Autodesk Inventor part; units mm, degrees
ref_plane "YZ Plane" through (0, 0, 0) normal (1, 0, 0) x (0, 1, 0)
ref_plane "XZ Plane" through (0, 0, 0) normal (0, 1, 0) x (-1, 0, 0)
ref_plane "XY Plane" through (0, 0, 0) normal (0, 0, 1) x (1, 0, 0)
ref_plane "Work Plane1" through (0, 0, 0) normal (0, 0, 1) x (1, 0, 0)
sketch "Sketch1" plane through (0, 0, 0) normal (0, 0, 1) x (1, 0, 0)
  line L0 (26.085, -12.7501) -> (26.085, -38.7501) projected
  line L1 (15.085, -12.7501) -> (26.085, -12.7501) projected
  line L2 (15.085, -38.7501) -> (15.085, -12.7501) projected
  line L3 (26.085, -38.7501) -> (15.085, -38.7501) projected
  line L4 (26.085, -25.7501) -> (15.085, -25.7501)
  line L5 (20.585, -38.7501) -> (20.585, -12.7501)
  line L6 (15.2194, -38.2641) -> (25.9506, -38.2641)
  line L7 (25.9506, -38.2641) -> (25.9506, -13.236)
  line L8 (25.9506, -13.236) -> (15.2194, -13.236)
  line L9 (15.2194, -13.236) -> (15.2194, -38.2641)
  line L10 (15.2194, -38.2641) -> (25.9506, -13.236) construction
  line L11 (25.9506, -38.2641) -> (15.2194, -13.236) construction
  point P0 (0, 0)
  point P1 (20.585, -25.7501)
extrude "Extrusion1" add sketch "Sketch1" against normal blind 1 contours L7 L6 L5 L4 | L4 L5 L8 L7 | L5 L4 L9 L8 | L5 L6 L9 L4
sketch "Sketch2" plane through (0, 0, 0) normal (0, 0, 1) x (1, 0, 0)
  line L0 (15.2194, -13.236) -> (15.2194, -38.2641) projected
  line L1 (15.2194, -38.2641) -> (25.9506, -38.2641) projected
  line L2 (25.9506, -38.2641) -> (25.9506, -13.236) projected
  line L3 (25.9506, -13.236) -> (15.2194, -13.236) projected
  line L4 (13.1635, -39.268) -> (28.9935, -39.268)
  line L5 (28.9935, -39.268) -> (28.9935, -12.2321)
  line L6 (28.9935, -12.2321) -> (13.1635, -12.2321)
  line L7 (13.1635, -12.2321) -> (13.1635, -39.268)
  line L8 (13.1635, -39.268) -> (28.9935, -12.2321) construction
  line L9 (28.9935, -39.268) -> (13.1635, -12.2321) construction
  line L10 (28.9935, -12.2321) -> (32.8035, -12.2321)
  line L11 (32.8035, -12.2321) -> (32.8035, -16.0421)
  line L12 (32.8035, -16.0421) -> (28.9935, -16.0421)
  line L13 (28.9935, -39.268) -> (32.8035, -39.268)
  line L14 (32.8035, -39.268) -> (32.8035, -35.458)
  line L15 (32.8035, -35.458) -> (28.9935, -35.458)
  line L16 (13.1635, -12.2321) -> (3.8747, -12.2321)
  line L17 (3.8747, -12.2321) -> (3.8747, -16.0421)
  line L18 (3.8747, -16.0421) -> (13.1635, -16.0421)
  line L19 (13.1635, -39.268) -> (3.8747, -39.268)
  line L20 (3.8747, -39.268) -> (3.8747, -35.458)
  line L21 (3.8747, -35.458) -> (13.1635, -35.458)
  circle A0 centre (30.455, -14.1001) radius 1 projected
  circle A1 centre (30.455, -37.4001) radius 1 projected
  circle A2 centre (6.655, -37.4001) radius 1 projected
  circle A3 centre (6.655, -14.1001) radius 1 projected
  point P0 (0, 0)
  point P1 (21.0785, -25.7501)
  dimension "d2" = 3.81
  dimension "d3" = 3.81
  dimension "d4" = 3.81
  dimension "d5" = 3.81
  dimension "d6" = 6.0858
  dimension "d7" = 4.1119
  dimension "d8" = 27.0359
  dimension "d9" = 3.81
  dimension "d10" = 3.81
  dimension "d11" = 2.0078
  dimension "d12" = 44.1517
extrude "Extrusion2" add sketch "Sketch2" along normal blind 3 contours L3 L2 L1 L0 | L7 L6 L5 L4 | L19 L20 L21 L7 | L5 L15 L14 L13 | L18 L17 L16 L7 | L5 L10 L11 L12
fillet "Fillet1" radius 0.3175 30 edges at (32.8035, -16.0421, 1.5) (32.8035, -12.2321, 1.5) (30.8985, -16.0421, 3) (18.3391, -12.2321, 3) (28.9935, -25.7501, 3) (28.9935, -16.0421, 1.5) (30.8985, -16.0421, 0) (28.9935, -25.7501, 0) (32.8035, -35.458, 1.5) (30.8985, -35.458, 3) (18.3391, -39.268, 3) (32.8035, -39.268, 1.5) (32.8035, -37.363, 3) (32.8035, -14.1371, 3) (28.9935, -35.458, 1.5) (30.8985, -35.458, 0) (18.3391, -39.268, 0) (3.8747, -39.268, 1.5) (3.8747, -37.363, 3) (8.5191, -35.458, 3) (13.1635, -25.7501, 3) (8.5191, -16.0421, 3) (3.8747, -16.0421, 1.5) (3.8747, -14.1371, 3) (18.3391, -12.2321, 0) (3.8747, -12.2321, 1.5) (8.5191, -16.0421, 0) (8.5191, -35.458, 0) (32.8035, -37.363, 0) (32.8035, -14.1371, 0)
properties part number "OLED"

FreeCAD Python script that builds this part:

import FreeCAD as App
import Part
import Sketcher

V = App.Vector


def edges_at(feature, points):
    """Names of the edges that pass closest to the given points."""
    edges = feature.Shape.Edges
    near = lambda p: min(range(len(edges)), key=lambda i: edges[i].distToShape(Part.Vertex(*p))[0])
    return sorted({f"Edge{near(p) + 1}" for p in points})

doc = App.newDocument("Part")
body = doc.addObject("PartDesign::Body", "Body")

# Sketch on XY plane
sketch1 = body.newObject("Sketcher::SketchObject", "Sketch")
sketch1.AttachmentSupport = (doc.getObject("XY_Plane"), [""])
sketch1.MapMode = "FlatFace"
sketch1.addGeometry(Part.LineSegment(V(26, -38, 0), V(26, -13, 0)), False)
sketch1.addGeometry(Part.LineSegment(V(26, -13, 0), V(15, -13, 0)), False)
sketch1.addGeometry(Part.LineSegment(V(15, -13, 0), V(15, -38, 0)), False)
sketch1.addGeometry(Part.LineSegment(V(15, -38, 0), V(26, -38, 0)), False)
sketch1.addConstraint(Sketcher.Constraint("Coincident", 0, 2, 1, 1))
sketch1.addConstraint(Sketcher.Constraint("Coincident", 1, 2, 2, 1))
sketch1.addConstraint(Sketcher.Constraint("Coincident", 2, 2, 3, 1))
sketch1.addConstraint(Sketcher.Constraint("Coincident", 3, 2, 0, 1))
sketch1.addConstraint(Sketcher.Constraint("Vertical", 0))
sketch1.addConstraint(Sketcher.Constraint("Horizontal", 1))
sketch1.addConstraint(Sketcher.Constraint("Vertical", 2))
sketch1.addConstraint(Sketcher.Constraint("Horizontal", 3))
sketch1.addConstraint(Sketcher.Constraint("DistanceY", 0, 1, 0, 2, 25.028))
sketch1.addConstraint(Sketcher.Constraint("DistanceX", 1, 2, 1, 1, 10.7312))
sketch1.addConstraint(Sketcher.Constraint("DistanceY", 0, 2, -1, 1, 13.236))
sketch1.addConstraint(Sketcher.Constraint("DistanceX", -1, 1, 0, 2, 25.9506))
pad1 = body.newObject("PartDesign::Pad", "Pad")
pad1.Profile = sketch1
pad1.Length = 1
pad1.Reversed = True

# Sketch on XY plane
sketch2 = body.newObject("Sketcher::SketchObject", "Sketch001")
sketch2.AttachmentSupport = (doc.getObject("XY_Plane"), [""])
sketch2.MapMode = "FlatFace"
sketch2.addGeometry(Part.LineSegment(V(13.2, -16, 0), V(13.2, -35.5, 0)), False)
sketch2.addGeometry(Part.LineSegment(V(13.2, -35.5, 0), V(3.9, -35.5, 0)), False)
sketch2.addGeometry(Part.LineSegment(V(3.9, -35.5, 0), V(3.9, -39.3, 0)), False)
sketch2.addGeometry(Part.LineSegment(V(3.9, -39.3, 0), V(32.8, -39.3, 0)), False)
sketch2.addGeometry(Part.LineSegment(V(32.8, -39.3, 0), V(32.8, -35.5, 0)), False)
sketch2.addGeometry(Part.LineSegment(V(32.8, -35.5, 0), V(29, -35.5, 0)), False)
sketch2.addGeometry(Part.LineSegment(V(29, -35.5, 0), V(29, -16, 0)), False)
sketch2.addGeometry(Part.LineSegment(V(29, -16, 0), V(32.8, -16, 0)), False)
sketch2.addGeometry(Part.LineSegment(V(32.8, -16, 0), V(32.8, -12.2, 0)), False)
sketch2.addGeometry(Part.LineSegment(V(32.8, -12.2, 0), V(3.9, -12.2, 0)), False)
sketch2.addGeometry(Part.LineSegment(V(3.9, -12.2, 0), V(3.9, -16, 0)), False)
sketch2.addGeometry(Part.LineSegment(V(3.9, -16, 0), V(13.2, -16, 0)), False)
sketch2.addGeometry(Part.Circle(V(6.7, -37.4, 0), V(0, 0, 1), 1), False)
sketch2.addGeometry(Part.Circle(V(6.7, -14.1, 0), V(0, 0, 1), 1), False)
sketch2.addGeometry(Part.Circle(V(30.5, -14.1, 0), V(0, 0, 1), 1), False)
sketch2.addGeometry(Part.Circle(V(30.5, -37.4, 0), V(0, 0, 1), 1), False)
sketch2.addConstraint(Sketcher.Constraint("Coincident", 0, 2, 1, 1))
sketch2.addConstraint(Sketcher.Constraint("Coincident", 1, 2, 2, 1))
sketch2.addConstraint(Sketcher.Constraint("Coincident", 2, 2, 3, 1))
sketch2.addConstraint(Sketcher.Constraint("Coincident", 3, 2, 4, 1))
sketch2.addConstraint(Sketcher.Constraint("Coincident", 4, 2, 5, 1))
sketch2.addConstraint(Sketcher.Constraint("Coincident", 5, 2, 6, 1))
sketch2.addConstraint(Sketcher.Constraint("Coincident", 6, 2, 7, 1))
sketch2.addConstraint(Sketcher.Constraint("Coincident", 7, 2, 8, 1))
sketch2.addConstraint(Sketcher.Constraint("Coincident", 8, 2, 9, 1))
sketch2.addConstraint(Sketcher.Constraint("Coincident", 9, 2, 10, 1))
sketch2.addConstraint(Sketcher.Constraint("Coincident", 10, 2, 11, 1))
sketch2.addConstraint(Sketcher.Constraint("Coincident", 11, 2, 0, 1))
sketch2.addConstraint(Sketcher.Constraint("Vertical", 0))
sketch2.addConstraint(Sketcher.Constraint("Horizontal", 1))
sketch2.addConstraint(Sketcher.Constraint("Vertical", 2))
sketch2.addConstraint(Sketcher.Constraint("Horizontal", 3))
sketch2.addConstraint(Sketcher.Constraint("Vertical", 4))
sketch2.addConstraint(Sketcher.Constraint("Horizontal", 5))
sketch2.addConstraint(Sketcher.Constraint("Vertical", 6))
sketch2.addConstraint(Sketcher.Constraint("Horizontal", 7))
sketch2.addConstraint(Sketcher.Constraint("Vertical", 8))
sketch2.addConstraint(Sketcher.Constraint("Horizontal", 9))
sketch2.addConstraint(Sketcher.Constraint("Vertical", 10))
sketch2.addConstraint(Sketcher.Constraint("Horizontal", 11))
sketch2.addConstraint(Sketcher.Constraint("Equal", 12, 13))
sketch2.addConstraint(Sketcher.Constraint("Equal", 13, 14))
sketch2.addConstraint(Sketcher.Constraint("Equal", 14, 15))
sketch2.addConstraint(Sketcher.Constraint("Horizontal", 13, 3, 14, 3))
sketch2.addConstraint(Sketcher.Constraint("Horizontal", 12, 3, 15, 3))
sketch2.addConstraint(Sketcher.Constraint("Horizontal", 1, 2, 4, 2))
sketch2.addConstraint(Sketcher.Constraint("Horizontal", 7, 2, 10, 2))
sketch2.addConstraint(Sketcher.Constraint("Vertical", 12, 3, 13, 3))
sketch2.addConstraint(Sketcher.Constraint("Vertical", 14, 3, 15, 3))
sketch2.addConstraint(Sketcher.Constraint("Vertical", 4, 2, 7, 2))
sketch2.addConstraint(Sketcher.Constraint("Vertical", 2, 2, 9, 2))
sketch2.addConstraint(Sketcher.Constraint("Equal", 7, 2))
sketch2.addConstraint(Sketcher.Constraint("Equal", 4, 8))
sketch2.addConstraint(Sketcher.Constraint("Diameter", 12, 2.0))
sketch2.addConstraint(Sketcher.Constraint("DistanceX", 5, 2, 5, 1, 3.81))
sketch2.addConstraint(Sketcher.Constraint("DistanceY", 12, 3, -1, 1, 37.4))
sketch2.addConstraint(Sketcher.Constraint("DistanceY", 13, 3, -1, 1, 14.1))
sketch2.addConstraint(Sketcher.Constraint("DistanceX", 13, 3, 14, 3, 23.8))
sketch2.addConstraint(Sketcher.Constraint("DistanceY", 0, 2, 0, 1, 19.416))
sketch2.addConstraint(Sketcher.Constraint("DistanceX", 0, 2, 3, 2, 19.64))
sketch2.addConstraint(Sketcher.Constraint("DistanceX", 1, 2, 1, 1, 9.2888))
sketch2.addConstraint(Sketcher.Constraint("DistanceX", -1, 1, 12, 3, 6.655))
sketch2.addConstraint(Sketcher.Constraint("DistanceY", 0, 2, -1, 1, 35.458))
sketch2.addConstraint(Sketcher.Constraint("DistanceX", -1, 1, 0, 2, 13.1635))
pad2 = body.newObject("PartDesign::Pad", "Pad001")
pad2.Profile = sketch2
pad2.Length = 3
doc.recompute()

fillet = body.newObject("PartDesign::Fillet", "Fillet")
fillet.Base = (pad2, edges_at(pad2, [
    (32.803, -16.042, 1.5),
    (32.803, -12.232, 1.5),
    (30.898, -16.042, 3),
    (18.339, -12.232, 3),
    (28.994, -25.75, 3),
    (28.994, -16.042, 1.5),
    (30.898, -16.042, 0),
    (28.994, -25.75, 0),
    (32.803, -35.458, 1.5),
    (30.898, -35.458, 3),
    (18.339, -39.268, 3),
    (32.803, -39.268, 1.5),
    (32.803, -37.363, 3),
    (32.803, -14.137, 3),
    (28.994, -35.458, 1.5),
    (30.898, -35.458, 0),
    (18.339, -39.268, 0),
    (3.875, -39.268, 1.5),
    (3.875, -37.363, 3),
    (8.519, -35.458, 3),
    (13.164, -25.75, 3),
    (8.519, -16.042, 3),
    (3.875, -16.042, 1.5),
    (3.875, -14.137, 3),
    (18.339, -12.232, 0),
    (3.875, -12.232, 1.5),
    (8.519, -16.042, 0),
    (8.519, -35.458, 0),
    (32.803, -37.363, 0),
    (32.803, -14.137, 0),
]))
fillet.Radius = 0.3175

doc.recompute()
